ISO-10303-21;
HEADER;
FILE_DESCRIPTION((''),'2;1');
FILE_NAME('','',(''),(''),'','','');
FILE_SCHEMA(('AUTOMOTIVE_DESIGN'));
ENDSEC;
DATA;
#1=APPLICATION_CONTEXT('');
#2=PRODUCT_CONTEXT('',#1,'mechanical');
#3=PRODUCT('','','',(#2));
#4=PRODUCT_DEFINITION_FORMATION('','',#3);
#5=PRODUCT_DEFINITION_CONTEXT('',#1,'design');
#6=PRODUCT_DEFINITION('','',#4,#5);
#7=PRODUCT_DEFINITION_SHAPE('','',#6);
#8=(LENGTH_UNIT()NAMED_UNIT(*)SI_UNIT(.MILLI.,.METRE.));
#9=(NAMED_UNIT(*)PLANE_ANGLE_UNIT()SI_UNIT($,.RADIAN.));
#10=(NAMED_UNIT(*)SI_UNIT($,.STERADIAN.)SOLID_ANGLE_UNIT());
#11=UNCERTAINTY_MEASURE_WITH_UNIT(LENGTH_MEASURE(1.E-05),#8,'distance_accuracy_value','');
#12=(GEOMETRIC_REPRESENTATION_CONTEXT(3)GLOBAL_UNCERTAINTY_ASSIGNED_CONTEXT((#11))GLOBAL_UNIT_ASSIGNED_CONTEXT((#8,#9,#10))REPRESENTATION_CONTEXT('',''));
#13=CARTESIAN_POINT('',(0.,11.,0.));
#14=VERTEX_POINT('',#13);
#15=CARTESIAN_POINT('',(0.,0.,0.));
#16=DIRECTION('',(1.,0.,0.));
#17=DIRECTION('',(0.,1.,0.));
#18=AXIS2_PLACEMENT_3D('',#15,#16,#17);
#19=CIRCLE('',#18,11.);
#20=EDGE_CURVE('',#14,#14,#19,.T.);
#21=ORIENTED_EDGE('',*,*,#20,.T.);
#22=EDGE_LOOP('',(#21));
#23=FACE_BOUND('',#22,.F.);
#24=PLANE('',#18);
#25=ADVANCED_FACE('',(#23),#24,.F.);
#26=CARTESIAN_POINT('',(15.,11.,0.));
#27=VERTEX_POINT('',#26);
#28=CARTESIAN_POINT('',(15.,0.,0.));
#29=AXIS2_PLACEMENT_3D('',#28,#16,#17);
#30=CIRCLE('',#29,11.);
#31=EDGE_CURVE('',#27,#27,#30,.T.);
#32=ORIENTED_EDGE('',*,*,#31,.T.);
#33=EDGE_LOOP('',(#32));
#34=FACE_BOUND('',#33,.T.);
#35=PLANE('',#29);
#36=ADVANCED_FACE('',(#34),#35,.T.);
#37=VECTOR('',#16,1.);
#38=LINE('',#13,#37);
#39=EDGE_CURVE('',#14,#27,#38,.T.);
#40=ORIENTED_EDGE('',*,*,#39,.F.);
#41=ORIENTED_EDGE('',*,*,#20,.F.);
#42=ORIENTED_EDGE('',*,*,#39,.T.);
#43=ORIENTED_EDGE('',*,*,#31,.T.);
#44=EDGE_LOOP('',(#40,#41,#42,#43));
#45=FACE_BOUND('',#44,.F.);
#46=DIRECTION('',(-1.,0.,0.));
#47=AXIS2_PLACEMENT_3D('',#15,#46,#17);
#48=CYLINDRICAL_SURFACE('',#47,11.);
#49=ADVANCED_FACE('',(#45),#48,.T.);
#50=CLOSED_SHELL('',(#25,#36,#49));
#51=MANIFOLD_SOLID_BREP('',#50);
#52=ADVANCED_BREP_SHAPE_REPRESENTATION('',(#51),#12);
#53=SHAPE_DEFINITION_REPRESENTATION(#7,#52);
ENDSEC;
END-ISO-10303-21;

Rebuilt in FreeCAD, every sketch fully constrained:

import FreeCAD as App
import Part
import Sketcher
from FreeCAD import Vector
Q = App.Units.Quantity

doc = App.newDocument("Part")
body = doc.addObject("PartDesign::Body", "Body")

# Sketch on YZ plane
sketch1 = body.newObject("Sketcher::SketchObject", "Sketch")
sketch1.AttachmentSupport = (doc.getObject("YZ_Plane"), [""])
sketch1.MapMode = "FlatFace"
sketch1.addGeometry(Part.Circle(Vector(0, 0, 0), Vector(0, 0, 1), 11), False)
sketch1.addConstraint([
    Sketcher.Constraint("Coincident", 0, 3, -1, 1),
    Sketcher.Constraint("Diameter", 0, Q("22 mm")),
])
pad1 = body.newObject("PartDesign::Pad", "Pad")
pad1.Profile = sketch1
pad1.Length = 15

doc.recompute()
